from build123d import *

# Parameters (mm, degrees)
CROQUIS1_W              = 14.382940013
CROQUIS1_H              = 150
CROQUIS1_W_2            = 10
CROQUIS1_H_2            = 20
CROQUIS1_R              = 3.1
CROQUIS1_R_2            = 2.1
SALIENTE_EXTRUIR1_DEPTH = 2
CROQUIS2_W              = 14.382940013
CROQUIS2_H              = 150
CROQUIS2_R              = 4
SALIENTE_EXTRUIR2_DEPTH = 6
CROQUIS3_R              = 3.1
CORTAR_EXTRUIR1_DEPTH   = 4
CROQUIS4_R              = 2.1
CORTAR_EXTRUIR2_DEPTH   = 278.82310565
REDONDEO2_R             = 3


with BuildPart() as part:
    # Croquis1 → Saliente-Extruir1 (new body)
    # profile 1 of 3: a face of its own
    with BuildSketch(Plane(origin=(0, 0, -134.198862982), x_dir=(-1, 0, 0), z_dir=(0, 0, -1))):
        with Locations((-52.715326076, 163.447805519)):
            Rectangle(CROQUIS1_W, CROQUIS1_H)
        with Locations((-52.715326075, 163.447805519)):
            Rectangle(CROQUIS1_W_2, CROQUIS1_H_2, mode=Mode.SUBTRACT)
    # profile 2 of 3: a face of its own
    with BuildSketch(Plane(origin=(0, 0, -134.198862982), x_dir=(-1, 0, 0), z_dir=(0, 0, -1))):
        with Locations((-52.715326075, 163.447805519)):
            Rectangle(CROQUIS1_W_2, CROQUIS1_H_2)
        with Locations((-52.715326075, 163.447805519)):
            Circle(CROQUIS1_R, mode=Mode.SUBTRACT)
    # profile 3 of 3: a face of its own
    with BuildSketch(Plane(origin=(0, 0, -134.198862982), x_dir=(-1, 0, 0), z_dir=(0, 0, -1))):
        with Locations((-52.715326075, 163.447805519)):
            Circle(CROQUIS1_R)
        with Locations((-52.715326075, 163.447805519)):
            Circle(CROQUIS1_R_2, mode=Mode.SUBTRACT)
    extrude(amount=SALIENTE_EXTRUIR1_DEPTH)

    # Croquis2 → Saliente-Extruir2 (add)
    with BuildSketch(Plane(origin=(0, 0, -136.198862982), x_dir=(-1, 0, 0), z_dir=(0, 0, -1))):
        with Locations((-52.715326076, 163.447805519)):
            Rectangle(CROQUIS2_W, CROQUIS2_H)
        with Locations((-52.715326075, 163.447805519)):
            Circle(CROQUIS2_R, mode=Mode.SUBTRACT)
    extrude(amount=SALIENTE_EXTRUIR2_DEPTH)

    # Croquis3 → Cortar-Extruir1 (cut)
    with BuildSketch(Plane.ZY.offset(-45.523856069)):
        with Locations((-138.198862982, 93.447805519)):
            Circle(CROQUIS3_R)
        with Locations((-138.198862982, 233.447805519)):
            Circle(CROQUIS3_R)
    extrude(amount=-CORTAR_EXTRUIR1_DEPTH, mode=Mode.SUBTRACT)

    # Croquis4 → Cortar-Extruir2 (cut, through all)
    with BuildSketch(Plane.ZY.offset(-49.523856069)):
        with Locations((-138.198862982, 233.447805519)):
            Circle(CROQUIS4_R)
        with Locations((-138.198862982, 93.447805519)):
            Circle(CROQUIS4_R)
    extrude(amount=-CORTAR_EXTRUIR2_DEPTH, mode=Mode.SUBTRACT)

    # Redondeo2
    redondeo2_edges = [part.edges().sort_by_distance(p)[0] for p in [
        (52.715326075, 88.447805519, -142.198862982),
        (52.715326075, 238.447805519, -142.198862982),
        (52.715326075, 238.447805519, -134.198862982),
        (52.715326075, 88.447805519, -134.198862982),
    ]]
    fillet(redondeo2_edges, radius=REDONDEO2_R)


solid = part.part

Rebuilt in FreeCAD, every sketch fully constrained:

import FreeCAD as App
import Part
import Sketcher


def edges_at(feature, points):
    """Names of the edges that pass closest to the given points."""
    edges = feature.Shape.Edges
    near = lambda p: min(range(len(edges)), key=lambda i: edges[i].distToShape(Part.Vertex(*p))[0])
    return sorted({f"Edge{near(p) + 1}" for p in points})


def add_polygon(sketch, points):
    """Adds a closed chain of lines whose ends are joined by coincident constraints."""
    first, n = sketch.GeometryCount, len(points)
    for a, b in zip(points, points[1:] + points[:1]):
        sketch.addGeometry(Part.LineSegment(App.Vector(*a, 0), App.Vector(*b, 0)), False)
    for i in range(n):
        sketch.addConstraint(Sketcher.Constraint("Coincident", first + i, 2, first + (i + 1) % n, 1))

doc = App.newDocument("Part")
body = doc.addObject("PartDesign::Body", "Body")

# Sketch on XY plane
sketch1 = body.newObject("Sketcher::SketchObject", "Sketch")
sketch1.AttachmentSupport = (doc.getObject("XY_Plane"), [""])
sketch1.MapMode = "FlatFace"
sketch1.AttachmentOffset = App.Placement(App.Vector(0, 0, -134.198863), App.Rotation())
add_polygon(sketch1, [(59.9, 238.4), (59.9, 88.4), (45.5, 88.4), (45.5, 238.4)])  # lines 0-3
sketch1.addGeometry(Part.Circle(App.Vector(52.7, 163.4, 0), App.Vector(0, 0, 1), 2.1), False)  # 4
sketch1.addConstraint([
    Sketcher.Constraint("Vertical", 0),
    Sketcher.Constraint("Horizontal", 1),
    Sketcher.Constraint("Vertical", 2),
    Sketcher.Constraint("Horizontal", 3),
    Sketcher.Constraint("Diameter", 4, 4.2),
    Sketcher.Constraint("DistanceY", 0, 2, 0, 1, 150.0),
    Sketcher.Constraint("DistanceY", 0, 2, 4, 3, 75.0),
    Sketcher.Constraint("DistanceX", 1, 2, 1, 1, 14.38294),
    Sketcher.Constraint("DistanceX", 4, 3, 0, 2, 7.19147),
    Sketcher.Constraint("DistanceX", -1, 1, 4, 3, 52.715326),
    Sketcher.Constraint("DistanceY", -1, 1, 4, 3, 163.447806),
])
pad1 = body.newObject("PartDesign::Pad", "Pad")
pad1.Profile = sketch1
pad1.Length = 2
pad1.Reversed = True

# Sketch on XY plane
sketch2 = body.newObject("Sketcher::SketchObject", "Sketch001")
sketch2.AttachmentSupport = (doc.getObject("XY_Plane"), [""])
sketch2.MapMode = "FlatFace"
sketch2.AttachmentOffset = App.Placement(App.Vector(0, 0, -136.198863), App.Rotation())
add_polygon(sketch2, [(59.9, 238.4), (59.9, 88.4), (45.5, 88.4), (45.5, 238.4)])  # lines 0-3
sketch2.addGeometry(Part.Circle(App.Vector(52.7, 163.4, 0), App.Vector(0, 0, 1), 4), False)  # 4
sketch2.addConstraint([
    Sketcher.Constraint("Vertical", 0),
    Sketcher.Constraint("Horizontal", 1),
    Sketcher.Constraint("Vertical", 2),
    Sketcher.Constraint("Horizontal", 3),
    Sketcher.Constraint("Diameter", 4, 8.0),
    Sketcher.Constraint("DistanceY", 0, 2, 0, 1, 150.0),
    Sketcher.Constraint("DistanceY", 0, 2, 4, 3, 75.0),
    Sketcher.Constraint("DistanceX", 1, 2, 1, 1, 14.38294),
    Sketcher.Constraint("DistanceX", 4, 3, 0, 2, 7.19147),
    Sketcher.Constraint("DistanceX", -1, 1, 4, 3, 52.715326),
    Sketcher.Constraint("DistanceY", -1, 1, 4, 3, 163.447806),
])
pad2 = body.newObject("PartDesign::Pad", "Pad001")
pad2.Profile = sketch2
pad2.Length = 6
pad2.Reversed = True

# Sketch on YZ plane
sketch3 = body.newObject("Sketcher::SketchObject", "Sketch002")
sketch3.AttachmentSupport = (doc.getObject("YZ_Plane"), [""])
sketch3.MapMode = "FlatFace"
sketch3.AttachmentOffset = App.Placement(App.Vector(0, 0, 45.523856), App.Rotation())
sketch3.addGeometry([
    Part.Circle(App.Vector(93.4, -138.2, 0), App.Vector(0, 0, 1), 3.1),
    Part.Circle(App.Vector(233.4, -138.2, 0), App.Vector(0, 0, 1), 3.1),
], False)
sketch3.addConstraint([
    Sketcher.Constraint("Equal", 0, 1),
    Sketcher.Constraint("Horizontal", 0, 3, 1, 3),
    Sketcher.Constraint("Diameter", 0, 6.2),
    Sketcher.Constraint("DistanceX", 0, 3, 1, 3, 140.0),
    Sketcher.Constraint("DistanceX", -1, 1, 0, 3, 93.447806),
    Sketcher.Constraint("DistanceY", 0, 3, -1, 1, 138.198863),
])
pocket1 = body.newObject("PartDesign::Pocket", "Pocket")
pocket1.Profile = sketch3
pocket1.Length = 4
pocket1.Reversed = True

# Sketch on YZ plane
sketch4 = body.newObject("Sketcher::SketchObject", "Sketch003")
sketch4.AttachmentSupport = (doc.getObject("YZ_Plane"), [""])
sketch4.MapMode = "FlatFace"
sketch4.AttachmentOffset = App.Placement(App.Vector(0, 0, 49.523856), App.Rotation())
sketch4.addGeometry([
    Part.Circle(App.Vector(233.4, -138.2, 0), App.Vector(0, 0, 1), 2.1),
    Part.Circle(App.Vector(93.4, -138.2, 0), App.Vector(0, 0, 1), 2.1),
], False)
sketch4.addConstraint([
    Sketcher.Constraint("Equal", 0, 1),
    Sketcher.Constraint("Horizontal", 0, 3, 1, 3),
    Sketcher.Constraint("Diameter", 0, 4.2),
    Sketcher.Constraint("DistanceX", 1, 3, 0, 3, 140.0),
    Sketcher.Constraint("DistanceX", -1, 1, 0, 3, 233.447806),
    Sketcher.Constraint("DistanceY", 0, 3, -1, 1, 138.198863),
])
pocket2 = body.newObject("PartDesign::Pocket", "Pocket001")
pocket2.Profile = sketch4
pocket2.Type = "ThroughAll"
pocket2.Reversed = True
doc.recompute()

fillet = body.newObject("PartDesign::Fillet", "Fillet")
fillet.Base = (pocket2, edges_at(pocket2, [
    (52.715, 88.448, -142.199),
    (52.715, 238.448, -142.199),
    (52.715, 238.448, -134.199),
    (52.715, 88.448, -134.199),
]))
fillet.Radius = 3

doc.recompute()
